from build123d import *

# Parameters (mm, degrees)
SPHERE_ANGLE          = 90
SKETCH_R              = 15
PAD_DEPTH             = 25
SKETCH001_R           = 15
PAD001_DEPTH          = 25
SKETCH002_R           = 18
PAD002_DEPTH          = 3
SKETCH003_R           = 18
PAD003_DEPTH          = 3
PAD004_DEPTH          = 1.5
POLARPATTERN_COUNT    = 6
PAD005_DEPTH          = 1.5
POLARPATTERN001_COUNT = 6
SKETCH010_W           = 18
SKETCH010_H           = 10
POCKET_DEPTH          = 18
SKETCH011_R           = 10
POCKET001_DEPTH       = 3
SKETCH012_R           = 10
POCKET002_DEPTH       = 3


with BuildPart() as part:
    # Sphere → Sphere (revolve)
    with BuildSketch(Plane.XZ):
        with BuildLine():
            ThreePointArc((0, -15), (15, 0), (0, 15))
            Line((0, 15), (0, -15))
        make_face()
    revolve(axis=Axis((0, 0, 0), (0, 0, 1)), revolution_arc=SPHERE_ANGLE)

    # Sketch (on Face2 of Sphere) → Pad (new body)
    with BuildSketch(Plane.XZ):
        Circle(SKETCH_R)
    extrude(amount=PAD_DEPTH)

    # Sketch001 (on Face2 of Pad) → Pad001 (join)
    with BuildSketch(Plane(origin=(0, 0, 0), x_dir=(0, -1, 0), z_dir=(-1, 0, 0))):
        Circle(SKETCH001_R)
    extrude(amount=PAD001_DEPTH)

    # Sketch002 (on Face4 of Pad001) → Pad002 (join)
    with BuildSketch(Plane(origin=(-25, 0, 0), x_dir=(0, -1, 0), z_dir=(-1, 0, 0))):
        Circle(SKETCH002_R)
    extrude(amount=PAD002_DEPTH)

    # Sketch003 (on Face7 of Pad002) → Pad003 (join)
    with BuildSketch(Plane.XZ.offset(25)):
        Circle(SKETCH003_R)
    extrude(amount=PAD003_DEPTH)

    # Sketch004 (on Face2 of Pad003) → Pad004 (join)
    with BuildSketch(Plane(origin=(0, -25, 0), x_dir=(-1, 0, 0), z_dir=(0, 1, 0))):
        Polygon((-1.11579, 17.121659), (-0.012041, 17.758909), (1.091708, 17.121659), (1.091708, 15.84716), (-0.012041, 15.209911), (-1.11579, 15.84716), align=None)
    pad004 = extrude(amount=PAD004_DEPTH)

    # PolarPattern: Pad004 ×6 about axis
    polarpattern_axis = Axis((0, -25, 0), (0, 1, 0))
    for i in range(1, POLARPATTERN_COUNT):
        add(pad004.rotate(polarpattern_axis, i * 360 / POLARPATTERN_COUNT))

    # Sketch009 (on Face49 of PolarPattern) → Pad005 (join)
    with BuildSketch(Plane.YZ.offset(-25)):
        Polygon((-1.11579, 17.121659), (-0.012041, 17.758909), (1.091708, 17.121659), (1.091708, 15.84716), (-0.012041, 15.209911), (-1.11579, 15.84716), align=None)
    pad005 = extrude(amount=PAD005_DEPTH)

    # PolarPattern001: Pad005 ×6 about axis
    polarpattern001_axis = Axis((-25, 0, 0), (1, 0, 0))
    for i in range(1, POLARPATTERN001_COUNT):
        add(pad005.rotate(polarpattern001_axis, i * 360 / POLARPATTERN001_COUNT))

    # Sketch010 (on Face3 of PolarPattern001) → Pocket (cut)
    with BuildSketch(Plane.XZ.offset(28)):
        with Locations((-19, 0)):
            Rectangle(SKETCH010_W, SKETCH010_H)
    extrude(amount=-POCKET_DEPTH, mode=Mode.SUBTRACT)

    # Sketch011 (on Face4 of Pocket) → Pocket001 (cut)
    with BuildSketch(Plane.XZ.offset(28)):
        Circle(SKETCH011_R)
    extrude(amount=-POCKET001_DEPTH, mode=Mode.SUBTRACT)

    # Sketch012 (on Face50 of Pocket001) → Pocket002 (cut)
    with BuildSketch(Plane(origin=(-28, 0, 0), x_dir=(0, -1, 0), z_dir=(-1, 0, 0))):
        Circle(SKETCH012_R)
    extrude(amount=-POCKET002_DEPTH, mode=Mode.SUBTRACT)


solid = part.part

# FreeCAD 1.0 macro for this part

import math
import FreeCAD as App
import Part
import Sketcher
from FreeCAD import Vector
Q = App.Units.Quantity


def add_polygon(sketch, points):
    """Adds a closed chain of lines whose ends are joined by coincident constraints."""
    first, n = sketch.GeometryCount, len(points)
    for a, b in zip(points, points[1:] + points[:1]):
        sketch.addGeometry(Part.LineSegment(App.Vector(*a, 0), App.Vector(*b, 0)), False)
    for i in range(n):
        sketch.addConstraint(Sketcher.Constraint("Coincident", first + i, 2, first + (i + 1) % n, 1))

doc = App.newDocument("Part")
body = doc.addObject("PartDesign::Body", "Body")

# Sketch on XZ plane
sketch1 = body.newObject("Sketcher::SketchObject", "Sketch")
sketch1.AttachmentSupport = (doc.getObject("XZ_Plane"), [""])
sketch1.MapMode = "FlatFace"
sketch1.addGeometry([
    Part.ArcOfCircle(Part.Circle(Vector(0, 0, 0), Vector(0, 0, 1), 15), math.radians(-90), math.radians(90)),
    Part.LineSegment(Vector(0, 15, 0), Vector(0, -15, 0)),
], False)
sketch1.addConstraint([
    Sketcher.Constraint("Coincident", 0, 1, 1, 2),
    Sketcher.Constraint("Coincident", 1, 1, 0, 2),
    Sketcher.Constraint("Vertical", 1),
    Sketcher.Constraint("Coincident", 0, 3, -1, 1),
    Sketcher.Constraint("PointOnObject", 0, 1, -2),
    Sketcher.Constraint("Radius", 0, 15.0),
])
revolution = body.newObject("PartDesign::Revolution", "Revolution")
revolution.Profile = sketch1
revolution.ReferenceAxis = (sketch1, ["V_Axis"])
revolution.Angle = 90

# Sketch on XZ plane
sketch2 = body.newObject("Sketcher::SketchObject", "Sketch001")
sketch2.AttachmentSupport = (doc.getObject("XZ_Plane"), [""])
sketch2.MapMode = "FlatFace"
sketch2.addGeometry(Part.Circle(Vector(0, 0, 0), Vector(0, 0, 1), 15), False)
sketch2.addConstraint([
    Sketcher.Constraint("Coincident", 0, 3, -1, 1),
    Sketcher.Constraint("Diameter", 0, 30.0),
])
pad1 = body.newObject("PartDesign::Pad", "Pad")
pad1.Profile = sketch2
pad1.Length = 25

# Sketch on YZ plane
sketch3 = body.newObject("Sketcher::SketchObject", "Sketch002")
sketch3.AttachmentSupport = (doc.getObject("YZ_Plane"), [""])
sketch3.MapMode = "FlatFace"
sketch3.addGeometry(Part.Circle(Vector(0, 0, 0), Vector(0, 0, 1), 15), False)
sketch3.addConstraint([
    Sketcher.Constraint("Coincident", 0, 3, -1, 1),
    Sketcher.Constraint("Diameter", 0, 30.0),
])
pad2 = body.newObject("PartDesign::Pad", "Pad001")
pad2.Profile = sketch3
pad2.Length = 25
pad2.Reversed = True

# Sketch on YZ plane
sketch4 = body.newObject("Sketcher::SketchObject", "Sketch003")
sketch4.AttachmentSupport = (doc.getObject("YZ_Plane"), [""])
sketch4.MapMode = "FlatFace"
sketch4.AttachmentOffset = App.Placement(Vector(0, 0, -25), App.Rotation())
sketch4.addGeometry(Part.Circle(Vector(0, 0, 0), Vector(0, 0, 1), 18), False)
sketch4.addConstraint([
    Sketcher.Constraint("Coincident", 0, 3, -1, 1),
    Sketcher.Constraint("Diameter", 0, 36.0),
])
pad3 = body.newObject("PartDesign::Pad", "Pad002")
pad3.Profile = sketch4
pad3.Length = 3
pad3.Reversed = True

# Sketch on XZ plane
sketch5 = body.newObject("Sketcher::SketchObject", "Sketch004")
sketch5.AttachmentSupport = (doc.getObject("XZ_Plane"), [""])
sketch5.MapMode = "FlatFace"
sketch5.AttachmentOffset = App.Placement(Vector(0, 0, 25), App.Rotation())
sketch5.addGeometry(Part.Circle(Vector(0, 0, 0), Vector(0, 0, 1), 18), False)
sketch5.addConstraint([
    Sketcher.Constraint("Coincident", 0, 3, -1, 1),
    Sketcher.Constraint("Diameter", 0, 36.0),
])
pad4 = body.newObject("PartDesign::Pad", "Pad003")
pad4.Profile = sketch5
pad4.Length = 3

# Sketch on XZ plane
sketch6 = body.newObject("Sketcher::SketchObject", "Sketch005")
sketch6.AttachmentSupport = (doc.getObject("XZ_Plane"), [""])
sketch6.MapMode = "FlatFace"
sketch6.AttachmentOffset = App.Placement(Vector(0, 0, 25), App.Rotation())
add_polygon(sketch6, [(0.012041, 17.758909), (1.11579, 17.121659), (1.11579, 15.84716), (0.012041, 15.209911), (-1.091708, 15.84716), (-1.091708, 17.121659)])  # lines 0-5
sketch6.addConstraint([
    Sketcher.Constraint("Vertical", 1),
    Sketcher.Constraint("Vertical", 4),
    Sketcher.Constraint("Parallel", 0, 3),
    Sketcher.Constraint("Parallel", 2, 5),
    Sketcher.Constraint("Horizontal", 1, 2, 3, 2),
    Sketcher.Constraint("Horizontal", 0, 2, 4, 2),
    Sketcher.Constraint("Vertical", 2, 2, 5, 2),
    Sketcher.Constraint("Angle", 0, Q("-30.000008 deg")),
    Sketcher.Constraint("DistanceY", 1, 2, 1, 1, 1.274499),
    Sketcher.Constraint("Distance", 0, 1.2745),
    Sketcher.Constraint("DistanceX", -1, 1, 0, 2, 1.11579),
    Sketcher.Constraint("DistanceY", -1, 1, 0, 2, 17.121659),
])
pad5 = body.newObject("PartDesign::Pad", "Pad004")
pad5.Profile = sketch6
pad5.Length = 1.5
pad5.Reversed = True
doc.recompute()

polarpattern = body.newObject("PartDesign::PolarPattern", "PolarPattern")
polarpattern.Originals = [pad5]
polarpattern.Axis = (doc.getObject("Y_Axis"), [""])
polarpattern.Angle = 360
polarpattern.Occurrences = 6
body.Tip = polarpattern

# Sketch on YZ plane
sketch7 = body.newObject("Sketcher::SketchObject", "Sketch006")
sketch7.AttachmentSupport = (doc.getObject("YZ_Plane"), [""])
sketch7.MapMode = "FlatFace"
sketch7.AttachmentOffset = App.Placement(Vector(0, 0, -25), App.Rotation())
add_polygon(sketch7, [(-0.012041, 17.758909), (-1.11579, 17.121659), (-1.11579, 15.84716), (-0.012041, 15.209911), (1.091708, 15.84716), (1.091708, 17.121659)])  # lines 0-5
sketch7.addConstraint([
    Sketcher.Constraint("Vertical", 1),
    Sketcher.Constraint("Vertical", 4),
    Sketcher.Constraint("Parallel", 0, 3),
    Sketcher.Constraint("Parallel", 2, 5),
    Sketcher.Constraint("Horizontal", 1, 2, 3, 2),
    Sketcher.Constraint("Horizontal", 0, 2, 4, 2),
    Sketcher.Constraint("Vertical", 2, 2, 5, 2),
    Sketcher.Constraint("Angle", 0, Q("-149.999992 deg")),
    Sketcher.Constraint("DistanceY", 1, 2, 1, 1, 1.274499),
    Sketcher.Constraint("Distance", 0, 1.2745),
    Sketcher.Constraint("DistanceX", 0, 2, -1, 1, 1.11579),
    Sketcher.Constraint("DistanceY", -1, 1, 0, 2, 17.121659),
])
pad6 = body.newObject("PartDesign::Pad", "Pad005")
pad6.Profile = sketch7
pad6.Length = 1.5
doc.recompute()

polarpattern2 = body.newObject("PartDesign::PolarPattern", "PolarPattern001")
polarpattern2.Originals = [pad6]
polarpattern2.Axis = (doc.getObject("X_Axis"), [""])
polarpattern2.Angle = 360
polarpattern2.Occurrences = 6
body.Tip = polarpattern2

# Sketch on XZ plane
sketch8 = body.newObject("Sketcher::SketchObject", "Sketch007")
sketch8.AttachmentSupport = (doc.getObject("XZ_Plane"), [""])
sketch8.MapMode = "FlatFace"
sketch8.AttachmentOffset = App.Placement(Vector(0, 0, 28), App.Rotation())
add_polygon(sketch8, [(-28, 5), (-28, -5), (-10, -5), (-10, 5)])  # lines 0-3
sketch8.addConstraint([
    Sketcher.Constraint("Vertical", 0),
    Sketcher.Constraint("Horizontal", 1),
    Sketcher.Constraint("Vertical", 2),
    Sketcher.Constraint("Horizontal", 3),
    Sketcher.Constraint("DistanceX", 1, 1, 1, 2, 18.0),
    Sketcher.Constraint("DistanceY", 0, 2, 0, 1, 10.0),
    Sketcher.Constraint("DistanceX", 0, 2, -1, 1, 28.0),
    Sketcher.Constraint("DistanceY", 0, 2, -1, 1, 5.0),
])
pocket1 = body.newObject("PartDesign::Pocket", "Pocket")
pocket1.Profile = sketch8
pocket1.Length = 18

# Sketch on XZ plane
sketch9 = body.newObject("Sketcher::SketchObject", "Sketch008")
sketch9.AttachmentSupport = (doc.getObject("XZ_Plane"), [""])
sketch9.MapMode = "FlatFace"
sketch9.AttachmentOffset = App.Placement(Vector(0, 0, 28), App.Rotation())
sketch9.addGeometry(Part.Circle(Vector(0, 0, 0), Vector(0, 0, 1), 10), False)
sketch9.addConstraint([
    Sketcher.Constraint("Coincident", 0, 3, -1, 1),
    Sketcher.Constraint("Diameter", 0, 20.0),
])
pocket2 = body.newObject("PartDesign::Pocket", "Pocket001")
pocket2.Profile = sketch9
pocket2.Length = 3

# Sketch on YZ plane
sketch10 = body.newObject("Sketcher::SketchObject", "Sketch009")
sketch10.AttachmentSupport = (doc.getObject("YZ_Plane"), [""])
sketch10.MapMode = "FlatFace"
sketch10.AttachmentOffset = App.Placement(Vector(0, 0, -28), App.Rotation())
sketch10.addGeometry(Part.Circle(Vector(0, 0, 0), Vector(0, 0, 1), 10), False)
sketch10.addConstraint([
    Sketcher.Constraint("Coincident", 0, 3, -1, 1),
    Sketcher.Constraint("Diameter", 0, 20.0),
])
pocket3 = body.newObject("PartDesign::Pocket", "Pocket002")
pocket3.Profile = sketch10
pocket3.Length = 3
pocket3.Reversed = True

doc.recompute()
